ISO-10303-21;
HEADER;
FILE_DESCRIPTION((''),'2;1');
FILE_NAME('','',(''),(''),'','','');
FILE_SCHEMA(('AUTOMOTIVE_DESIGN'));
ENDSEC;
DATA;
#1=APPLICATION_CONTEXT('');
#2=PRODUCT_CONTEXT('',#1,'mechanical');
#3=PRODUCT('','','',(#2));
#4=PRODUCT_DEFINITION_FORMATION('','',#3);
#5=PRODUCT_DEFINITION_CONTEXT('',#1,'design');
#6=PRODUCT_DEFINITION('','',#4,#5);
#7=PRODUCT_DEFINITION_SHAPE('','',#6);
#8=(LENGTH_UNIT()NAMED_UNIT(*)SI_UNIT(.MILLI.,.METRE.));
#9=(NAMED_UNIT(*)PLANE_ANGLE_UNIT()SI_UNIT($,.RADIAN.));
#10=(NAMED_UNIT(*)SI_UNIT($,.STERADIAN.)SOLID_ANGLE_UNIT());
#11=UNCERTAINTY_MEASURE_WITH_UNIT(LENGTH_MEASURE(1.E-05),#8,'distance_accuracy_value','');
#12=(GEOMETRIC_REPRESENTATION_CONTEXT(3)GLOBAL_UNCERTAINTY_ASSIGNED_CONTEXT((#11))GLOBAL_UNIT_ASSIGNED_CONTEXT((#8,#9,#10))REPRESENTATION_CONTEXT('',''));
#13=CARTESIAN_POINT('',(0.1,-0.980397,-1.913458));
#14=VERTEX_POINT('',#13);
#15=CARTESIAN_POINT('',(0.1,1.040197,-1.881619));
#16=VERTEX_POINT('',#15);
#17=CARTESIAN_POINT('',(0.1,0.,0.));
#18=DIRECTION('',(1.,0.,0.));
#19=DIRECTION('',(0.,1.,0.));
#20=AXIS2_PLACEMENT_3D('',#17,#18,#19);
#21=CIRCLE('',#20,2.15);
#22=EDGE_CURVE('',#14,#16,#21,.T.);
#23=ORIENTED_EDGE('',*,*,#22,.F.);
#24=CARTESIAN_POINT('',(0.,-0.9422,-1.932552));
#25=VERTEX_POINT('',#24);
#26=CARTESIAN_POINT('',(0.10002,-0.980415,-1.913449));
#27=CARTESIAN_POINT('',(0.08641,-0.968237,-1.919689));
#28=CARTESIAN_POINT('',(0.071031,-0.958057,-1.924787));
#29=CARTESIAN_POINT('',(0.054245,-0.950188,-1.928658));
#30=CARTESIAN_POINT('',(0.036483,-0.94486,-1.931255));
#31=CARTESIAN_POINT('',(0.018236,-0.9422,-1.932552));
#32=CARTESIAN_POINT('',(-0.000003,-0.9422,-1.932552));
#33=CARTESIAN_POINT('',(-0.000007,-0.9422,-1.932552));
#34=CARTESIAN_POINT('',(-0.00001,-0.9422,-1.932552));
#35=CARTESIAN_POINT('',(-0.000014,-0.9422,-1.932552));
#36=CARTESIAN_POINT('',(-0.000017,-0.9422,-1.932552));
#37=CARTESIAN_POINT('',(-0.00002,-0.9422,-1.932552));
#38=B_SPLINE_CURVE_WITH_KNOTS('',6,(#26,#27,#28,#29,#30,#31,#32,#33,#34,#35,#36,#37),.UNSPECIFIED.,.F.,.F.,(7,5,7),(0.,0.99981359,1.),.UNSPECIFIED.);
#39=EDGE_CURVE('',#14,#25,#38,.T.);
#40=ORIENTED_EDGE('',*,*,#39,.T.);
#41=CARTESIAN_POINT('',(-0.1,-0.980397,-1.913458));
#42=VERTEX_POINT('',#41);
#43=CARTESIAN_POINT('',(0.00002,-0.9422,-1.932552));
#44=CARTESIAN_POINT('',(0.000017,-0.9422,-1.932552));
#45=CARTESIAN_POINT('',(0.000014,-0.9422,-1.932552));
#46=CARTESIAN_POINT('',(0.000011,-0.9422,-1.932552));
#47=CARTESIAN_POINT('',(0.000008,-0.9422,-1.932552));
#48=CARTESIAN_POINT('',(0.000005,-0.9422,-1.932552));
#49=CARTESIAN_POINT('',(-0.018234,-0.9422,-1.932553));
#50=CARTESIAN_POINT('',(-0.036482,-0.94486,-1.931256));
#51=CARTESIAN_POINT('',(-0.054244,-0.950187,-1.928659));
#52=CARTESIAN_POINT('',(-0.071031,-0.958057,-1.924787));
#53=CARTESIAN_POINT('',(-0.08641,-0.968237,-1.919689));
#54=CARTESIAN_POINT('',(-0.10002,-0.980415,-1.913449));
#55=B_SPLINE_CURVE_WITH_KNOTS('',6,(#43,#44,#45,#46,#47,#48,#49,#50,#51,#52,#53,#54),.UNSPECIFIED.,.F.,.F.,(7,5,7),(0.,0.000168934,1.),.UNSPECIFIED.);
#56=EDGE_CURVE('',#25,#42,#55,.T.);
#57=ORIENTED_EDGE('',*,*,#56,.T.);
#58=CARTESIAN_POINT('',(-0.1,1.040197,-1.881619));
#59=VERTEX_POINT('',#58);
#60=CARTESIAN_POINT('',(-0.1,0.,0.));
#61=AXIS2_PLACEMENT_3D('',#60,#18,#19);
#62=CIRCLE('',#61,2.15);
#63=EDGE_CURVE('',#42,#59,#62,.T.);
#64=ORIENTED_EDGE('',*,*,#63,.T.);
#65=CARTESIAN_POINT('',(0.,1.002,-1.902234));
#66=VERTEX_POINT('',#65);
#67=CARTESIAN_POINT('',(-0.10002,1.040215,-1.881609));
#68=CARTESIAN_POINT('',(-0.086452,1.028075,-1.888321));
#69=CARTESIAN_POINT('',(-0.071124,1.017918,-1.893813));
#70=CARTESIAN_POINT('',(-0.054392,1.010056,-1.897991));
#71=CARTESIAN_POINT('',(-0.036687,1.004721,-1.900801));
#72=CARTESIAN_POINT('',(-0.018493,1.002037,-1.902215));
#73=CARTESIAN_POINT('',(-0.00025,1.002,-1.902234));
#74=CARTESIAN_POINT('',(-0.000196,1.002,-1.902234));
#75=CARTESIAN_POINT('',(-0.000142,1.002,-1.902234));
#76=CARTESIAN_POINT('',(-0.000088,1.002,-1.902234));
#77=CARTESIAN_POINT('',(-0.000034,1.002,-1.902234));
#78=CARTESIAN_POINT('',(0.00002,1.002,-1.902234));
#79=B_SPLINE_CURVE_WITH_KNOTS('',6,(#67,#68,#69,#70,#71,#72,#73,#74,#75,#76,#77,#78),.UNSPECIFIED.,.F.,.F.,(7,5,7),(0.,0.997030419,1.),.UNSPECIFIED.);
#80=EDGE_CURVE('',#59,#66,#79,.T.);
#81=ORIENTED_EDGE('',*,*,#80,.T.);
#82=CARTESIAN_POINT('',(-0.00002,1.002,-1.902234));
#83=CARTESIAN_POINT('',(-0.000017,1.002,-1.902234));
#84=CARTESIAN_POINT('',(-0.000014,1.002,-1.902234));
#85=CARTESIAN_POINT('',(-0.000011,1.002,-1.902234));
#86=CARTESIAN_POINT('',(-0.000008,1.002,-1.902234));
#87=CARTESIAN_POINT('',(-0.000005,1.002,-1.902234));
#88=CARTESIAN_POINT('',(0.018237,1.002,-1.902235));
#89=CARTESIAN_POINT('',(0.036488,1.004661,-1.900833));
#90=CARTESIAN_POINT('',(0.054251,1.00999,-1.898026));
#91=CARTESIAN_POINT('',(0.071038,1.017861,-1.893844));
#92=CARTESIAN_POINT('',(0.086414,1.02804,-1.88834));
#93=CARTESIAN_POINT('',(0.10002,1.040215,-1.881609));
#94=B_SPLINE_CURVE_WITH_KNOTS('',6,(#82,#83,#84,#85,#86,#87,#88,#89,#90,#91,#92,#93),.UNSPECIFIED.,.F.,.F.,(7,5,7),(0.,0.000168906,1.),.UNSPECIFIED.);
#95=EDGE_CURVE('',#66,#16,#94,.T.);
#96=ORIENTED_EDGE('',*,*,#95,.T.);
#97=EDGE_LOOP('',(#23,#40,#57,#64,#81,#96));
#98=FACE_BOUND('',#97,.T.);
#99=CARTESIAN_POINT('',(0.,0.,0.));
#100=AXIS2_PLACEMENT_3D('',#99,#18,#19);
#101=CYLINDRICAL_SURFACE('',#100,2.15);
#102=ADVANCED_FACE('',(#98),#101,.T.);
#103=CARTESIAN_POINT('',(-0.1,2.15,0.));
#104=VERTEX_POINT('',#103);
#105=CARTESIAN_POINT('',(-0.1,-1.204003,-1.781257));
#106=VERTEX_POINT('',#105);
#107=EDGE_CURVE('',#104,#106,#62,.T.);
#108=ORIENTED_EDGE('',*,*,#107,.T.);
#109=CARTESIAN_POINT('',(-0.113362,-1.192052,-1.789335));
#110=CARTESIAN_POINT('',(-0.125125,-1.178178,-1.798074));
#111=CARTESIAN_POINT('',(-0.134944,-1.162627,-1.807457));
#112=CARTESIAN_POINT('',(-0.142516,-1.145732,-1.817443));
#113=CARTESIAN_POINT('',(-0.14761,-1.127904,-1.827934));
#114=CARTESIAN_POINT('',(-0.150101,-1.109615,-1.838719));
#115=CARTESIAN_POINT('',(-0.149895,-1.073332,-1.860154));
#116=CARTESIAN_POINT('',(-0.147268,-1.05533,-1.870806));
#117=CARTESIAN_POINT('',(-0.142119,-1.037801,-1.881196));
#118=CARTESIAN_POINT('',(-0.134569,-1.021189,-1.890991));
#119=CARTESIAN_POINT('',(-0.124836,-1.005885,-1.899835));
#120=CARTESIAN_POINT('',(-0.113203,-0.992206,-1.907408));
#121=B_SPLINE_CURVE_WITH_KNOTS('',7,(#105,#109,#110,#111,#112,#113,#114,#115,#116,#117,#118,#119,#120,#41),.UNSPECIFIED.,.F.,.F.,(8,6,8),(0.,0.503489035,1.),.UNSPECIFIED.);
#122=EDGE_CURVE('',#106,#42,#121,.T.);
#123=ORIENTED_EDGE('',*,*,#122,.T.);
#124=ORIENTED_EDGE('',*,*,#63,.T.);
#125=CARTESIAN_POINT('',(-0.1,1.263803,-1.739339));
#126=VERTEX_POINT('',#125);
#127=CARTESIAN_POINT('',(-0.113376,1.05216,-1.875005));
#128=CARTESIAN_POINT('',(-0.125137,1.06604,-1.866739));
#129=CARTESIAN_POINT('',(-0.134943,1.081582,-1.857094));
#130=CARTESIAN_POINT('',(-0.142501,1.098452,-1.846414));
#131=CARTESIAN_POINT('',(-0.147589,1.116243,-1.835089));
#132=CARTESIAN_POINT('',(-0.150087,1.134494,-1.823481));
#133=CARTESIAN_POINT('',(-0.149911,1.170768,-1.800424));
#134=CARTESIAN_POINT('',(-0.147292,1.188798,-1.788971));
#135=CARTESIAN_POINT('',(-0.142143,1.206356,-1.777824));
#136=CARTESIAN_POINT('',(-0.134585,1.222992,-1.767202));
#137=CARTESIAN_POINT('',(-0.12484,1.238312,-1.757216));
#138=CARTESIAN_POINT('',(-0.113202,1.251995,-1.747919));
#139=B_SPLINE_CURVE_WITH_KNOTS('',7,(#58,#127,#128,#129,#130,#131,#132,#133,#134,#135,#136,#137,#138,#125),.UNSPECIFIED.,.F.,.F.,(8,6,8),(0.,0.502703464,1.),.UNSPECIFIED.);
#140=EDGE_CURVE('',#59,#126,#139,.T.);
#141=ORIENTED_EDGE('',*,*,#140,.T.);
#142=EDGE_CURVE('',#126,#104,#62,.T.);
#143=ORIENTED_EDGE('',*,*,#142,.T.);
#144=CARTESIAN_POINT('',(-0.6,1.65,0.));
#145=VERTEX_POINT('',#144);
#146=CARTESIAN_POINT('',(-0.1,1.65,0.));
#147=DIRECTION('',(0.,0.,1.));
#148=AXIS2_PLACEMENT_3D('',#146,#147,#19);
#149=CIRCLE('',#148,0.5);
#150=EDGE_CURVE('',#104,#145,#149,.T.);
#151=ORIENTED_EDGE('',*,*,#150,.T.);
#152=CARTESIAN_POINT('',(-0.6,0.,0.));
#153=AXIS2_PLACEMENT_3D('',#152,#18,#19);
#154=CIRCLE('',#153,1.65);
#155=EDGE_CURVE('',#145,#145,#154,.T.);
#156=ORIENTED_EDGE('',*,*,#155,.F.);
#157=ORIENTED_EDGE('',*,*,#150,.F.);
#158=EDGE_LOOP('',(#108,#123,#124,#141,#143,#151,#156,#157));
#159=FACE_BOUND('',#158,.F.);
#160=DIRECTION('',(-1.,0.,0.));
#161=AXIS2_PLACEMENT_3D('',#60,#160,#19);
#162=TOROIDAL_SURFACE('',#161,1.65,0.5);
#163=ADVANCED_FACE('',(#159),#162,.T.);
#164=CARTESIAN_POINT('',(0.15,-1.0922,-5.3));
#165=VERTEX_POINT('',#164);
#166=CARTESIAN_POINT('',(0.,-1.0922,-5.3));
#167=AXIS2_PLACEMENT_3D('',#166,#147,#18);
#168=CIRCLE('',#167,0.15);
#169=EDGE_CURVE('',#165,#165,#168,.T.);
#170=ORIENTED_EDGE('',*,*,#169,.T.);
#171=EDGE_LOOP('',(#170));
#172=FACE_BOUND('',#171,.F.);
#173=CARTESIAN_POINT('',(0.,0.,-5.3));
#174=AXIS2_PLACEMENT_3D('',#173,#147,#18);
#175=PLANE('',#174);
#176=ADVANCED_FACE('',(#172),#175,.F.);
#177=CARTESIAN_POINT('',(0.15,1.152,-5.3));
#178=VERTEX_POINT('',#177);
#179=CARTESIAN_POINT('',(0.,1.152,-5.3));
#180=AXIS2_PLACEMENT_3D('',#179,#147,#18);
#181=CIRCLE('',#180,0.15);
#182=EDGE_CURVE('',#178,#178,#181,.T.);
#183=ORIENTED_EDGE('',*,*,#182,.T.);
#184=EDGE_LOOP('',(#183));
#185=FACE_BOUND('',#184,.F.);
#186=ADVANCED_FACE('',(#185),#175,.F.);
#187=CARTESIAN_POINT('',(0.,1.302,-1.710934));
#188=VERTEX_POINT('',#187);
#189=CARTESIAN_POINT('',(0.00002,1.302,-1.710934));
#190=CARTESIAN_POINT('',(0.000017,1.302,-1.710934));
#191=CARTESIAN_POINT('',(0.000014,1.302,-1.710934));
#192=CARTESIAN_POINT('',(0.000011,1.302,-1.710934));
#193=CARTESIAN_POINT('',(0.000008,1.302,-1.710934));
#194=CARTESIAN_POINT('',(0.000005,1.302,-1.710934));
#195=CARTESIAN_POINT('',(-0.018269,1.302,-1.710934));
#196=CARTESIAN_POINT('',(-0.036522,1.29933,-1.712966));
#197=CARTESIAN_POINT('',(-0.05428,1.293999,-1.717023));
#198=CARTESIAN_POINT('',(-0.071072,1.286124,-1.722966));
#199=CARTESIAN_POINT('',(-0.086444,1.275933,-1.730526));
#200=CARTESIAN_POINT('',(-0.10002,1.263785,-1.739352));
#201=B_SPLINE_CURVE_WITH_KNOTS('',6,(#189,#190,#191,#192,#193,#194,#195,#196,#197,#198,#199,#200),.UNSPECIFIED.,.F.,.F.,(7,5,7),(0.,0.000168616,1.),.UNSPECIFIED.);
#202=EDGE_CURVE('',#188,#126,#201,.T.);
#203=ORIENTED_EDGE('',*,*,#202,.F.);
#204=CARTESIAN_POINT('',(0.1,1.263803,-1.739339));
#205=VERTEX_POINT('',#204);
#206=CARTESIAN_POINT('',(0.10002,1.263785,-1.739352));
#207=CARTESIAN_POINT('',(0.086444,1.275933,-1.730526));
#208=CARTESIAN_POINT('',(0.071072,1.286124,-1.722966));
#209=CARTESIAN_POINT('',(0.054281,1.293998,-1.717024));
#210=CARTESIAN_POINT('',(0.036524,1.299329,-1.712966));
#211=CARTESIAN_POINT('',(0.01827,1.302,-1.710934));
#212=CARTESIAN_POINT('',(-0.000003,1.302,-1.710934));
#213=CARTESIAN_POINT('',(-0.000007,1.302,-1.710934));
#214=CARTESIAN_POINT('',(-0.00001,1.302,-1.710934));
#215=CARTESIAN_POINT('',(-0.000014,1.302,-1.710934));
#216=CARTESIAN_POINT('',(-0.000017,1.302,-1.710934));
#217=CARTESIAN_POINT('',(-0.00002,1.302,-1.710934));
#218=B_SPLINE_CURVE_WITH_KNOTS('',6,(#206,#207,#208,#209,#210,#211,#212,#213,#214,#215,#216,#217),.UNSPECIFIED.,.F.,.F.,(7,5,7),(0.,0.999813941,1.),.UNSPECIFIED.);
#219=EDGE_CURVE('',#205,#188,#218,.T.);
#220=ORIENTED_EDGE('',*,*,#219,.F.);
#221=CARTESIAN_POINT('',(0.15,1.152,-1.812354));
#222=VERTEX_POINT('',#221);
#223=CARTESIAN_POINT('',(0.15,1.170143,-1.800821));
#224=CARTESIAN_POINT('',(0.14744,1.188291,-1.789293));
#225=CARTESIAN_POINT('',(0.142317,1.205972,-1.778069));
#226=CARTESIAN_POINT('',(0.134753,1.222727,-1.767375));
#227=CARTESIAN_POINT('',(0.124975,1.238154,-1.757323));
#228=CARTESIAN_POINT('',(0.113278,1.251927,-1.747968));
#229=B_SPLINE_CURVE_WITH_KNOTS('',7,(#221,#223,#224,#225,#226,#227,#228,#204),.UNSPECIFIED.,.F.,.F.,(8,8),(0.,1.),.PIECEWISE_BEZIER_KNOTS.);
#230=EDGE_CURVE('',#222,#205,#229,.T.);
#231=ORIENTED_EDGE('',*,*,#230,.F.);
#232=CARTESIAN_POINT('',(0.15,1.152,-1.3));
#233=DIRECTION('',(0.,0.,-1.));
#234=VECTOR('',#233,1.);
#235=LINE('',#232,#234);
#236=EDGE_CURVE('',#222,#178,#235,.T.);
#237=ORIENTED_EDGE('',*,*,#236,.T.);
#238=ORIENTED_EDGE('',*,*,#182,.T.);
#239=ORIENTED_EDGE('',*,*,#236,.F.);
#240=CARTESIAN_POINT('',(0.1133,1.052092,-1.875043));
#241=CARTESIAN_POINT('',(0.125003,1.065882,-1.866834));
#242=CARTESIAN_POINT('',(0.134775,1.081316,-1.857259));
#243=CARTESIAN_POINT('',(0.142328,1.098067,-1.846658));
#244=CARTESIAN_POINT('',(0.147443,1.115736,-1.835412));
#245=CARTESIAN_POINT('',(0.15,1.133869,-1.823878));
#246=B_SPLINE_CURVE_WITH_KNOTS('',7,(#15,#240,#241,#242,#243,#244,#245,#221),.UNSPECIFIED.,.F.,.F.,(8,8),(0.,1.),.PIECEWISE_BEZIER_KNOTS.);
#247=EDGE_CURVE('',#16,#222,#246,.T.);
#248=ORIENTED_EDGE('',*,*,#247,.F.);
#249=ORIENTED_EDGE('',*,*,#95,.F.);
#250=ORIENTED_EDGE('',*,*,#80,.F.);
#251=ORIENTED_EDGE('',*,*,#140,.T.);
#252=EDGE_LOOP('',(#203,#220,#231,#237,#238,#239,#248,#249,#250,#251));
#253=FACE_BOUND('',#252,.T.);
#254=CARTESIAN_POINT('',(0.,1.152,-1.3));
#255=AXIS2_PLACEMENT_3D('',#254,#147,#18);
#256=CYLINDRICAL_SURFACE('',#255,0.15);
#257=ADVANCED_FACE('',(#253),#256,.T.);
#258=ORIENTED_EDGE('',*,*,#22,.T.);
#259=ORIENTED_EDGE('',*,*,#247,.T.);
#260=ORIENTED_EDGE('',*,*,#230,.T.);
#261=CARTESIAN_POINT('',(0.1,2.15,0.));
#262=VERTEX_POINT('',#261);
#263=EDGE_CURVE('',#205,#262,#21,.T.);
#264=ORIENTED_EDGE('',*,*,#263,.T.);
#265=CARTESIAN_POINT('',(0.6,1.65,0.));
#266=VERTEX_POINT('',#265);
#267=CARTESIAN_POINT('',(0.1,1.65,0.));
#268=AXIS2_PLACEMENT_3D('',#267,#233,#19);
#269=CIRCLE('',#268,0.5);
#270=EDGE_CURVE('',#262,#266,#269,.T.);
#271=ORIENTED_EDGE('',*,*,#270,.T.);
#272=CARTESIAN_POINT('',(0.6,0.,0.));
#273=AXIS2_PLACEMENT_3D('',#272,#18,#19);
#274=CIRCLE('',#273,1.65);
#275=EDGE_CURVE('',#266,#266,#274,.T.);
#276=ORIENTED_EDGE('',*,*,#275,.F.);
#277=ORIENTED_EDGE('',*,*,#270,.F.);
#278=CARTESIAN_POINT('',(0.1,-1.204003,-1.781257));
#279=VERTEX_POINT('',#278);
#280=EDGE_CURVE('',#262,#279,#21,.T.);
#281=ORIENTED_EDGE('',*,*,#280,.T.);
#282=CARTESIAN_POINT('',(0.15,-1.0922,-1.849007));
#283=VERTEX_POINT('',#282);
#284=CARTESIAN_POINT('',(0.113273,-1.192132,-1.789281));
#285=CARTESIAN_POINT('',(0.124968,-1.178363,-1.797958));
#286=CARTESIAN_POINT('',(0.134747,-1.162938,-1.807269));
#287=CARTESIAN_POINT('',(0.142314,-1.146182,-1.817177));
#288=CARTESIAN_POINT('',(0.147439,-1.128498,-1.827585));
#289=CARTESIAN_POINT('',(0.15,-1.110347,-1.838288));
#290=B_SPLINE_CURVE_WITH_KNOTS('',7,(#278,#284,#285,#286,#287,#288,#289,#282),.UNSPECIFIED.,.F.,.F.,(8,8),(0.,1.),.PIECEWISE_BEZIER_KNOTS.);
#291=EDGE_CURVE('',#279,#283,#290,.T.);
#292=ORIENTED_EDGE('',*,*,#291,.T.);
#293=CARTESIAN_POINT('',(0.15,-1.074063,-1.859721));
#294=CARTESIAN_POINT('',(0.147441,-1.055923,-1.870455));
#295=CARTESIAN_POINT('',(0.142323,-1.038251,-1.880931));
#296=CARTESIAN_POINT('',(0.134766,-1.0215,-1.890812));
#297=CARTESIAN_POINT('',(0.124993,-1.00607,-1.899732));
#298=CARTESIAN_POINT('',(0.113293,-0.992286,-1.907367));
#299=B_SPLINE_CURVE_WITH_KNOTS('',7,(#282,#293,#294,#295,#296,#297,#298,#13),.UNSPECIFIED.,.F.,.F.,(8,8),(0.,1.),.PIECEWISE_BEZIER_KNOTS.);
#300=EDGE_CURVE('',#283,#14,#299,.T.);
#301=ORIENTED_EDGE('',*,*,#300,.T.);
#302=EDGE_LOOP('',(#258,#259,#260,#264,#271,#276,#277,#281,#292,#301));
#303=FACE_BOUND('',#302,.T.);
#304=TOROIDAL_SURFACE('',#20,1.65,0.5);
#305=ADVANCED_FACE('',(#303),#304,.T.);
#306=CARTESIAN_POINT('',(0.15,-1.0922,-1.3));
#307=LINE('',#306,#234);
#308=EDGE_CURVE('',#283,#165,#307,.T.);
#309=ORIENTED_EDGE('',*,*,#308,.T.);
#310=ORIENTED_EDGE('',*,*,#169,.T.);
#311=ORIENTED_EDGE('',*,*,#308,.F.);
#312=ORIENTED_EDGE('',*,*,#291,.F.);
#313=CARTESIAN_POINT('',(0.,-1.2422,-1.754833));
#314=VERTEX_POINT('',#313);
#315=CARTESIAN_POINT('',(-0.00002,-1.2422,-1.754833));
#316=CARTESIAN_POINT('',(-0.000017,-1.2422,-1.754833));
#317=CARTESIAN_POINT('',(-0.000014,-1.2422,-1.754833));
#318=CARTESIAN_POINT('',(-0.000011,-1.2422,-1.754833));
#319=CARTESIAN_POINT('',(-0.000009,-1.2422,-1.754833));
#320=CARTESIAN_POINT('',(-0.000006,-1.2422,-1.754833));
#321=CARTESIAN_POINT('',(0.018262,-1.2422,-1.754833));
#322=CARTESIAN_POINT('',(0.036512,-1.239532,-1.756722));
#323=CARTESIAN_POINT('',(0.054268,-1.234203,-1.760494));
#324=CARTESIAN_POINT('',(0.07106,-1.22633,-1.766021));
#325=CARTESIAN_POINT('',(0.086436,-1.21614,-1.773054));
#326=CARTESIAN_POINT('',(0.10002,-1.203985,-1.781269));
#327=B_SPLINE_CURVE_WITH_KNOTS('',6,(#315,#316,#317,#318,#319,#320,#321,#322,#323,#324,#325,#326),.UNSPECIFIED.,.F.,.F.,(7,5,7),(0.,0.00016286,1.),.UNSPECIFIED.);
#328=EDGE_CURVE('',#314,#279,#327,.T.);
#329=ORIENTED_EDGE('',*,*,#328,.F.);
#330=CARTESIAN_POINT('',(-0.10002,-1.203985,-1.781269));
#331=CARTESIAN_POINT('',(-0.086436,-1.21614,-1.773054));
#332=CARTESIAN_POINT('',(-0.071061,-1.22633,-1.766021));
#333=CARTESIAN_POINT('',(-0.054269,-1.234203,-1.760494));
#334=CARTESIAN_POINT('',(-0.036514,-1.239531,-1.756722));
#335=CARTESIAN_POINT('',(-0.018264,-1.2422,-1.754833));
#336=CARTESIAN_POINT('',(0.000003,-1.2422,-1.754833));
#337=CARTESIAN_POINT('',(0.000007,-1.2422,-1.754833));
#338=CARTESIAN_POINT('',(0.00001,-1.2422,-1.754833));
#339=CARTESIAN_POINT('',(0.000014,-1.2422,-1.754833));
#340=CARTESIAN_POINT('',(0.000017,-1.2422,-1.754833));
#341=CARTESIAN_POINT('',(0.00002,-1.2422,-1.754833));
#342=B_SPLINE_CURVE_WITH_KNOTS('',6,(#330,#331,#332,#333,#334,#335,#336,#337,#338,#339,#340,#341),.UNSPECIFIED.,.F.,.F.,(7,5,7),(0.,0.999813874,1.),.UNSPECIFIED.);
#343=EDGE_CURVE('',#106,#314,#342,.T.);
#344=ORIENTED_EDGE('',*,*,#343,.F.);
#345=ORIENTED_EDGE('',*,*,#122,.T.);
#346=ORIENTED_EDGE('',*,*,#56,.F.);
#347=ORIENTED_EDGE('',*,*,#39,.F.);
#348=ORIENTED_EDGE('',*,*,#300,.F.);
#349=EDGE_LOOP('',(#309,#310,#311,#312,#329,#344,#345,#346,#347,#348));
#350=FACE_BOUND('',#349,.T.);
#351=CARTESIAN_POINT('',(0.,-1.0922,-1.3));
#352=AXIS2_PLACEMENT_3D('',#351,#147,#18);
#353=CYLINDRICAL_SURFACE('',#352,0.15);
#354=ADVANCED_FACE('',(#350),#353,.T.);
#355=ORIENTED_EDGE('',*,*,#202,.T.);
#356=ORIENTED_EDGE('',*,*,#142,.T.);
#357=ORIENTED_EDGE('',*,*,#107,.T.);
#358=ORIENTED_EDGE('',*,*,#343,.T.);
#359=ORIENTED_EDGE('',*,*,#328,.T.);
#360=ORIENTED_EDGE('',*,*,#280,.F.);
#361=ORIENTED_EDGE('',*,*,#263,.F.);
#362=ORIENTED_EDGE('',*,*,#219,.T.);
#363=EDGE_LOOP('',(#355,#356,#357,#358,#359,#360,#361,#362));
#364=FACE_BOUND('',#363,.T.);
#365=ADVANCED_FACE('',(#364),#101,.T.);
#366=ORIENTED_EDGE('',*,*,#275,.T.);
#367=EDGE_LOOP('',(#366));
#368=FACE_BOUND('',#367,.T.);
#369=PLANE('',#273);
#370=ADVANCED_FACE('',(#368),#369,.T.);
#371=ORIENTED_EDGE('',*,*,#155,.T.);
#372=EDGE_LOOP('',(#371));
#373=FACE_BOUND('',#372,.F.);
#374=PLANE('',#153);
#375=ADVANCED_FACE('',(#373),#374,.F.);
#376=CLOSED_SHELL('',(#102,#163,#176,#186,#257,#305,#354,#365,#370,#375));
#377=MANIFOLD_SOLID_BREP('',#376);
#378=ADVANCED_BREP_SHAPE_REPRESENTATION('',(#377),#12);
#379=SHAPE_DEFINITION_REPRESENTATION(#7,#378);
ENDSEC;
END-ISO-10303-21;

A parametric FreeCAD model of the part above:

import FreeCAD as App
import Part
import Sketcher

V = App.Vector
Q = App.Units.Quantity


def edges_at(feature, points):
    """Names of the edges that pass closest to the given points."""
    edges = feature.Shape.Edges
    near = lambda p: min(range(len(edges)), key=lambda i: edges[i].distToShape(Part.Vertex(*p))[0])
    return sorted({f"Edge{near(p) + 1}" for p in points})

doc = App.newDocument("Part")
params = doc.addObject("Spreadsheet::Sheet", "Params")
for row, (alias, value) in enumerate([
    ("sketch1_diameter", "4.3 mm"),
    ("pad1_length", "1.2 mm"),
    ("fillet_radius", "0.5 mm"),
    ("fillet2_radius", "0.5 mm"),
    ("sketch2_diameter", "0.3 mm"),
    ("pad2_length", "4 mm"),
], start=1):
    params.set(f"A{row}", alias)
    params.set(f"B{row}", "=" + value)
    params.setAlias(f"B{row}", alias)

body = doc.addObject("PartDesign::Body", "Body")

sketch1 = body.newObject("Sketcher::SketchObject", "Sketch")
sketch1.AttachmentSupport = (doc.getObject("YZ_Plane"), [""])
sketch1.MapMode = "FlatFace"
sketch1.addGeometry(Part.Circle(V(0, 0, 0), V(0, 0, 1), 2.1), False)
sketch1.addConstraint([
    Sketcher.Constraint("Coincident", 0, 3, -1, 1),
    Sketcher.Constraint("Diameter", 0, Q("4.3 mm")),
])
sketch1.setExpression("Constraints[1]", "Params.sketch1_diameter")
pad1 = body.newObject("PartDesign::Pad", "Pad")
pad1.Profile = sketch1
pad1.setExpression("Length", "Params.pad1_length")
pad1.Midplane = True
doc.recompute()

fillet = body.newObject("PartDesign::Fillet", "Fillet")
fillet.Base = (pad1, edges_at(pad1, [(0.6, -2.15, 0)]))
fillet.setExpression("Radius", "Params.fillet_radius")
doc.recompute()

fillet2 = body.newObject("PartDesign::Fillet", "Fillet001")
fillet2.Base = (fillet, edges_at(fillet, [(-0.6, -2.15, 0)]))
fillet2.setExpression("Radius", "Params.fillet2_radius")

sketch2 = body.newObject("Sketcher::SketchObject", "Sketch001")
sketch2.AttachmentSupport = (doc.getObject("XY_Plane"), [""])
sketch2.MapMode = "FlatFace"
sketch2.AttachmentOffset = App.Placement(V(0, 0, -1.3), App.Rotation())
sketch2.addGeometry([
    Part.Circle(V(0, -1.09, 0), V(0, 0, 1), 0.15),
    Part.Circle(V(0, 1.15, 0), V(0, 0, 1), 0.15),
], False)
sketch2.addConstraint([
    Sketcher.Constraint("Equal", 0, 1),
    Sketcher.Constraint("PointOnObject", 0, 3, -2),
    Sketcher.Constraint("PointOnObject", 1, 3, -2),
    Sketcher.Constraint("Diameter", 0, Q("0.3 mm")),
    Sketcher.Constraint("DistanceY", -1, 1, 1, 3, Q("1.152 mm")),
    Sketcher.Constraint("DistanceY", 0, 3, -1, 1, Q("1.0922 mm")),
])
sketch2.setExpression("Constraints[3]", "Params.sketch2_diameter")
pad2 = body.newObject("PartDesign::Pad", "Pad001")
pad2.Profile = sketch2
pad2.setExpression("Length", "Params.pad2_length")
pad2.Reversed = True

doc.recompute()
